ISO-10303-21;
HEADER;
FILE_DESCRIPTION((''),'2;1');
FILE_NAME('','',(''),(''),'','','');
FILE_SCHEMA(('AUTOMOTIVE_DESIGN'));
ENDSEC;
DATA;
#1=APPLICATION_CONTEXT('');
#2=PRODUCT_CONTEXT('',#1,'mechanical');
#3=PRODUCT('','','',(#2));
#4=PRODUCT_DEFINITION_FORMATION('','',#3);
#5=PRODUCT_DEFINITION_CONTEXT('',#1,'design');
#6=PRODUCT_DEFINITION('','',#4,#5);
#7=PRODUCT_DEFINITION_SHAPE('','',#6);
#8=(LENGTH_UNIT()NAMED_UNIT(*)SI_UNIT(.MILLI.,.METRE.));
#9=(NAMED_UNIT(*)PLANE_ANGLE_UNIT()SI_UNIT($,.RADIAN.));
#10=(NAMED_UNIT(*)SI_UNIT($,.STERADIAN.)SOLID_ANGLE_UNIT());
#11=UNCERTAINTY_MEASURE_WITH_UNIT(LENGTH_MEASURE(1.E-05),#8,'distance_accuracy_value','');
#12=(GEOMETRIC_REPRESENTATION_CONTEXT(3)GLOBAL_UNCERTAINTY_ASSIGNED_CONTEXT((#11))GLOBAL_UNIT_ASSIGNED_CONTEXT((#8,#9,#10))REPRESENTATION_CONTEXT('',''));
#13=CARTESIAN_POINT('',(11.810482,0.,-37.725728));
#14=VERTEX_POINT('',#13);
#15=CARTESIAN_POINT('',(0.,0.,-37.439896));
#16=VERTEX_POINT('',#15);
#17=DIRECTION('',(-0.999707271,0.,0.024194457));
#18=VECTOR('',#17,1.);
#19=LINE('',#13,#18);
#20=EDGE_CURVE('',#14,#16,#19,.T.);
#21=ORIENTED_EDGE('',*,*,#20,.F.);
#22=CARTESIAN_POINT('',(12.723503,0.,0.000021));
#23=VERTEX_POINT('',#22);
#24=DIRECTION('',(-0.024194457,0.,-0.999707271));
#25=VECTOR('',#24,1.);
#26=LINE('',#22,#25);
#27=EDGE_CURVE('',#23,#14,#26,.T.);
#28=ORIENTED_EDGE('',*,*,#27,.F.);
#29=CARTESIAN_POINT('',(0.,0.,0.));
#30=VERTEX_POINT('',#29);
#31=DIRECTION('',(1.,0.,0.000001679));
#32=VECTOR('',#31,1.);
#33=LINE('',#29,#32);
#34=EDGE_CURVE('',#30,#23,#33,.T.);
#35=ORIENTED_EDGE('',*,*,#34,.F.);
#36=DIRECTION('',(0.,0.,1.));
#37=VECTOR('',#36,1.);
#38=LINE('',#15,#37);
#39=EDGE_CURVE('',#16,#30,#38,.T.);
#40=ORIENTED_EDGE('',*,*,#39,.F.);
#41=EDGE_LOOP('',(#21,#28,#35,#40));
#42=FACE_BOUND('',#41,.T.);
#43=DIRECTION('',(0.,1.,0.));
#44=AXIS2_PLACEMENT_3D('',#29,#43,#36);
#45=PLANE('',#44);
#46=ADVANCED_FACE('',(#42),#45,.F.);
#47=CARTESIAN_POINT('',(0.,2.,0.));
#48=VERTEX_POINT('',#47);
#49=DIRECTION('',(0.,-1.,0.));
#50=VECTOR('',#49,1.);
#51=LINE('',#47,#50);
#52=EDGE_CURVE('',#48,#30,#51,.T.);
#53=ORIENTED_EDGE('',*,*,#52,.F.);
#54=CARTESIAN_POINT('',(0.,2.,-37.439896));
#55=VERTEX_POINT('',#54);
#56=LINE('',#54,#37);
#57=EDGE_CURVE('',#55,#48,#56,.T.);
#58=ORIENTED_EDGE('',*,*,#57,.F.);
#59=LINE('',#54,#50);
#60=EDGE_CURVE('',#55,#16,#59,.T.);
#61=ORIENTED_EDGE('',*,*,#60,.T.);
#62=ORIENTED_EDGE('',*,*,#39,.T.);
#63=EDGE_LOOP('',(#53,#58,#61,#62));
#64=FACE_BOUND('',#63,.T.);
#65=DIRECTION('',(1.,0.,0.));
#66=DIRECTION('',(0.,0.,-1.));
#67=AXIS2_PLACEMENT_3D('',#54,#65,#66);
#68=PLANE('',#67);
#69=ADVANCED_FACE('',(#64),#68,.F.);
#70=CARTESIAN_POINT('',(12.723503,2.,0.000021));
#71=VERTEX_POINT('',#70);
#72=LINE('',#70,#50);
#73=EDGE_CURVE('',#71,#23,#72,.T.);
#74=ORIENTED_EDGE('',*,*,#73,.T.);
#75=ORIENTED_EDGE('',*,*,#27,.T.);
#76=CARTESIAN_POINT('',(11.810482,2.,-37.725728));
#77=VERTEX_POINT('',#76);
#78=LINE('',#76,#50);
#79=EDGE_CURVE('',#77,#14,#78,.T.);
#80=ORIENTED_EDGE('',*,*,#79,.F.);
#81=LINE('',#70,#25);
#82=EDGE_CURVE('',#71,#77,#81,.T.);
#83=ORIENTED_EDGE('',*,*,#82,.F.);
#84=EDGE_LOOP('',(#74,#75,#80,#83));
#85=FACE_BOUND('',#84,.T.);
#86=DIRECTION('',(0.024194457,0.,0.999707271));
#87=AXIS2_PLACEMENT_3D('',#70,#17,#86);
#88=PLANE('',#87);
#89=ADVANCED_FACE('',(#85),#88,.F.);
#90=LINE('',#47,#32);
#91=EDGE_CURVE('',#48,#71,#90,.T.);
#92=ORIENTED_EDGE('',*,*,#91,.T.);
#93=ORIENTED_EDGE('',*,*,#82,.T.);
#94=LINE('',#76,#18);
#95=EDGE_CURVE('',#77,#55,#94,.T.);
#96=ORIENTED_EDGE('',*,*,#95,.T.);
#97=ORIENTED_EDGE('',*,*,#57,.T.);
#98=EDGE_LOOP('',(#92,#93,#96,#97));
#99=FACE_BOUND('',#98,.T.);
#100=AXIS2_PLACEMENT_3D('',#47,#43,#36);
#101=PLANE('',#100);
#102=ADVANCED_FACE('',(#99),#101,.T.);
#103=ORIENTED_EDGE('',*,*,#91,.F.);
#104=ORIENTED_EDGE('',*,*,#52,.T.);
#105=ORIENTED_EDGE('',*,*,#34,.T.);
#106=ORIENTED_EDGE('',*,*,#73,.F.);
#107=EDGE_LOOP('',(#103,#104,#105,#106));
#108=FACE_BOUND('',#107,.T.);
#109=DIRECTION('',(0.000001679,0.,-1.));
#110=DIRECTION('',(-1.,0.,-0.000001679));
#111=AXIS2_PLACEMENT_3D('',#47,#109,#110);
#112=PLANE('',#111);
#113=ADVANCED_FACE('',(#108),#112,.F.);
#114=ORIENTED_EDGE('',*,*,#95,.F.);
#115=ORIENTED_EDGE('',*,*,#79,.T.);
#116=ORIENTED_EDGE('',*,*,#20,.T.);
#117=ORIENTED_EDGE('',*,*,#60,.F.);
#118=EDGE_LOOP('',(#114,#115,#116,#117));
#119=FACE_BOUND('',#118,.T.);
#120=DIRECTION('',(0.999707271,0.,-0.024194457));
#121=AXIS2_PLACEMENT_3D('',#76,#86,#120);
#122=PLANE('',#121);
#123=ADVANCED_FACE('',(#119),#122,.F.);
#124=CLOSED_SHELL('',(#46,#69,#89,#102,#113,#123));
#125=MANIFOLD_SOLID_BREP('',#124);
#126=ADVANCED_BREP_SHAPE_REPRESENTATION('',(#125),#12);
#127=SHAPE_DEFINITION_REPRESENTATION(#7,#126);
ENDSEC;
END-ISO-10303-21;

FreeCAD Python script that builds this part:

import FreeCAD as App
import Part
import Sketcher

V = App.Vector

doc = App.newDocument("Part")
body = doc.addObject("PartDesign::Body", "Body")

sketch1 = doc.addObject("Sketcher::SketchObject", "Sketch")
body.addObject(sketch1)
sketch1.AttachmentSupport = (doc.XZ_Plane, [""])
sketch1.MapMode = "FlatFace"
sketch1.addGeometry([
    Part.LineSegment(V(0, 0, 0), V(12.723503, 0.000021, 0)),
    Part.LineSegment(V(12.723503, 0.000021, 0), V(11.810482, -37.725728, 0)),
    Part.LineSegment(V(11.810482, -37.725728, 0), V(0, -37.439896, 0)),
    Part.LineSegment(V(0, -37.439896, 0), V(0, 0, 0)),
], False)
sketch1.addConstraint([
    Sketcher.Constraint("Coincident", 0, 2, 1, 1),
    Sketcher.Constraint("Coincident", 1, 2, 2, 1),
    Sketcher.Constraint("Coincident", 2, 2, 3, 1),
    Sketcher.Constraint("Coincident", 3, 2, 0, 1),
    Sketcher.Constraint("Vertical", 3),
    Sketcher.Constraint("Coincident", 3, 2, -1, 1),
    Sketcher.Constraint("Distance", 2, 11.81394),
    Sketcher.Constraint("DistanceY", 3, 1, 3, 2, 37.439896),
    Sketcher.Constraint("DistanceX", -1, 1, 1, 2, 11.810482),
    Sketcher.Constraint("DistanceX", 1, 2, 0, 2, 0.913021),
    Sketcher.Constraint("DistanceY", 1, 2, 0, 2, 37.72575),
])
pad1 = doc.addObject("PartDesign::Pad", "Pad")
body.addObject(pad1)
pad1.Profile = sketch1
pad1.Length = 2
pad1.Reversed = True

doc.recompute()
